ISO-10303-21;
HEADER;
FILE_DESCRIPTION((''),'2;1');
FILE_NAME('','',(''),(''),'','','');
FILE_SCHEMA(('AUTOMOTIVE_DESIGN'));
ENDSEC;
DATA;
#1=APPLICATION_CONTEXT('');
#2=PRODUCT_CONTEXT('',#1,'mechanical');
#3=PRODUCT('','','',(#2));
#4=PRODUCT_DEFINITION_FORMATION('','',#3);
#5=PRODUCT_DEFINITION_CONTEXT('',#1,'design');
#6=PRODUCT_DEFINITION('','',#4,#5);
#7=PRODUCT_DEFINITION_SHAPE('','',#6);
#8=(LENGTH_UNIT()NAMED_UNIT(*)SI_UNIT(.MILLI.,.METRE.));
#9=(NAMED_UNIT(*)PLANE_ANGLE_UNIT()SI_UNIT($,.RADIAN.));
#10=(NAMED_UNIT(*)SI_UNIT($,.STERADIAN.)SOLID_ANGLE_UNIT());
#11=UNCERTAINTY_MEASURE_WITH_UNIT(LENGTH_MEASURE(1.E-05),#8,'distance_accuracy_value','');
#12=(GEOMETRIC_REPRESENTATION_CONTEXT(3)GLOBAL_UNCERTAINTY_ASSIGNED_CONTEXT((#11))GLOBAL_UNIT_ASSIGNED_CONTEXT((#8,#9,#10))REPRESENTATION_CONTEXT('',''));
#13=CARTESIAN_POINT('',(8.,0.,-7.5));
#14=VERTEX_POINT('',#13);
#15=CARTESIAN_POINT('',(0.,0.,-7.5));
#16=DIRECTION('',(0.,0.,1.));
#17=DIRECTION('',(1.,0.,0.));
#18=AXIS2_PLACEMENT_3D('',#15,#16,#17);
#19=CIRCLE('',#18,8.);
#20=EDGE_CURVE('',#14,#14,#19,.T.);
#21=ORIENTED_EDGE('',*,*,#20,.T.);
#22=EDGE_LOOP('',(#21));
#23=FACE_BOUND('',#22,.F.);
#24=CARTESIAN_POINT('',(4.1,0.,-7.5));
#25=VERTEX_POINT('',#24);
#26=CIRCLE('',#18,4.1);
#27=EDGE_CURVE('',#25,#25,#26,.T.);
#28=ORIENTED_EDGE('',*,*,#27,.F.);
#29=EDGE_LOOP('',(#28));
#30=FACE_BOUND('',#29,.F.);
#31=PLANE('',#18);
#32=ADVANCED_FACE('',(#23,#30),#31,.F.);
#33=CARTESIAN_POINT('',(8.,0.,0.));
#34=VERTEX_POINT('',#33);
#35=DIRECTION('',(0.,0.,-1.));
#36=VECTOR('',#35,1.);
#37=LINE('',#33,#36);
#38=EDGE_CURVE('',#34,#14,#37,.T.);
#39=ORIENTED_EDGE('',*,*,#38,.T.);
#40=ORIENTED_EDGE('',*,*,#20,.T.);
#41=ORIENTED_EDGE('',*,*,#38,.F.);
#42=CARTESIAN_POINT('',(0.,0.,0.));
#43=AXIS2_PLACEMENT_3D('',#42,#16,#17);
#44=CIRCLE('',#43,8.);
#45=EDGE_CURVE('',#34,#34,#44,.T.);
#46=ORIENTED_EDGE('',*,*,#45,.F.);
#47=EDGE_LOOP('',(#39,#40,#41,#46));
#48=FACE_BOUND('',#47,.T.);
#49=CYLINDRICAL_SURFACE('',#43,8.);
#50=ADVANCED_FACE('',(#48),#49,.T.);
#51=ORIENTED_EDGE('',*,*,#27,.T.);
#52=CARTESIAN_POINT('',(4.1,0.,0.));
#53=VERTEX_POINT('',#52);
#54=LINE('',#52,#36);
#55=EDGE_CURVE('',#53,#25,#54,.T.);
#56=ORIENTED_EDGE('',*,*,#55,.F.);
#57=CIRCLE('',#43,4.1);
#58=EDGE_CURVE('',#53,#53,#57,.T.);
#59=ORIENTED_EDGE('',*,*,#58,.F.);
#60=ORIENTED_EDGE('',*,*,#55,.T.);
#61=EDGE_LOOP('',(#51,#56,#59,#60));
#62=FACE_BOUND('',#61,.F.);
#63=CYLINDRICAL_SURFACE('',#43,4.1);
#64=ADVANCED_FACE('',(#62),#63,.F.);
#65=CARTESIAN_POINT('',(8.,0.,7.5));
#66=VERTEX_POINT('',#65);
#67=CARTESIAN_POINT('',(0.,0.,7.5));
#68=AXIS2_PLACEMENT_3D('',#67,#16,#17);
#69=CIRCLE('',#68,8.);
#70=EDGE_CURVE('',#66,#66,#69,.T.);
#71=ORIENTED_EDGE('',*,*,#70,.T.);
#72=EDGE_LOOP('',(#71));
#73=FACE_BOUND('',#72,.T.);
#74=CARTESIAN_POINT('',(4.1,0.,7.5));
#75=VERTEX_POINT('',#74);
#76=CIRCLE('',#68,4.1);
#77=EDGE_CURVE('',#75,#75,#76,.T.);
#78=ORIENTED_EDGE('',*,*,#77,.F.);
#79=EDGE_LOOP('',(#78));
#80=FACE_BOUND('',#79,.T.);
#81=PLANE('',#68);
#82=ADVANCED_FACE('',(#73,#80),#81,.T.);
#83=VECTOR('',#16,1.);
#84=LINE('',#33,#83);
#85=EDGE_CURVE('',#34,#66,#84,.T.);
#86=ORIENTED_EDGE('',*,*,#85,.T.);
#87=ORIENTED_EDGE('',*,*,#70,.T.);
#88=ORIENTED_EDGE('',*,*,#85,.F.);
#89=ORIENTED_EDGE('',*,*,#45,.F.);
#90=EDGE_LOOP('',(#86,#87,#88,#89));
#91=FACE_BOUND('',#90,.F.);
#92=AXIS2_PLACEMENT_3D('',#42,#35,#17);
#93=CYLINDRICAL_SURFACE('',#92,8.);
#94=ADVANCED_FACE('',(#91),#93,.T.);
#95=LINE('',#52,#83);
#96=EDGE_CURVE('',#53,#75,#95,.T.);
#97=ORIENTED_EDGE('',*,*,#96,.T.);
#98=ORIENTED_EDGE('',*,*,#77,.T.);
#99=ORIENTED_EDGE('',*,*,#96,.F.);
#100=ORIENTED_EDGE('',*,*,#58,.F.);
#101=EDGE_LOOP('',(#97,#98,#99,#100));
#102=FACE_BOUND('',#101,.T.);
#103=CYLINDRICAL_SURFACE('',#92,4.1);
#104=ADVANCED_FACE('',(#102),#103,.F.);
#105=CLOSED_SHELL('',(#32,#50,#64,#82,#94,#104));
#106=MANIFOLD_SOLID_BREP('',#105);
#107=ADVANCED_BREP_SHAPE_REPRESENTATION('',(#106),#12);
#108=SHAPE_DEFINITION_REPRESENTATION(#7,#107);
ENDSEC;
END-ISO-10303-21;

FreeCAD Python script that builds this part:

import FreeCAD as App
import Part
import Sketcher

doc = App.newDocument("Part")
body = doc.addObject("PartDesign::Body", "Body")

# Sketch on XY plane
sketch1 = body.newObject("Sketcher::SketchObject", "Sketch")
sketch1.AttachmentSupport = (doc.getObject("XY_Plane"), [""])
sketch1.MapMode = "FlatFace"
sketch1.addGeometry(Part.Circle(App.Vector(0, 0, 0), App.Vector(0, 0, 1), 8), False)
sketch1.addGeometry(Part.Circle(App.Vector(0, 0, 0), App.Vector(0, 0, 1), 4.1), False)
sketch1.addConstraint(Sketcher.Constraint("Coincident", 0, 3, -1, 1))
sketch1.addConstraint(Sketcher.Constraint("Coincident", 1, 3, -1, 1))
sketch1.addConstraint(Sketcher.Constraint("Diameter", 0, 16.0))
sketch1.addConstraint(Sketcher.Constraint("Diameter", 1, 8.2))
pad1 = body.newObject("PartDesign::Pad", "Pad")
pad1.Profile = sketch1
pad1.Length = 15
pad1.Midplane = True

doc.recompute()
